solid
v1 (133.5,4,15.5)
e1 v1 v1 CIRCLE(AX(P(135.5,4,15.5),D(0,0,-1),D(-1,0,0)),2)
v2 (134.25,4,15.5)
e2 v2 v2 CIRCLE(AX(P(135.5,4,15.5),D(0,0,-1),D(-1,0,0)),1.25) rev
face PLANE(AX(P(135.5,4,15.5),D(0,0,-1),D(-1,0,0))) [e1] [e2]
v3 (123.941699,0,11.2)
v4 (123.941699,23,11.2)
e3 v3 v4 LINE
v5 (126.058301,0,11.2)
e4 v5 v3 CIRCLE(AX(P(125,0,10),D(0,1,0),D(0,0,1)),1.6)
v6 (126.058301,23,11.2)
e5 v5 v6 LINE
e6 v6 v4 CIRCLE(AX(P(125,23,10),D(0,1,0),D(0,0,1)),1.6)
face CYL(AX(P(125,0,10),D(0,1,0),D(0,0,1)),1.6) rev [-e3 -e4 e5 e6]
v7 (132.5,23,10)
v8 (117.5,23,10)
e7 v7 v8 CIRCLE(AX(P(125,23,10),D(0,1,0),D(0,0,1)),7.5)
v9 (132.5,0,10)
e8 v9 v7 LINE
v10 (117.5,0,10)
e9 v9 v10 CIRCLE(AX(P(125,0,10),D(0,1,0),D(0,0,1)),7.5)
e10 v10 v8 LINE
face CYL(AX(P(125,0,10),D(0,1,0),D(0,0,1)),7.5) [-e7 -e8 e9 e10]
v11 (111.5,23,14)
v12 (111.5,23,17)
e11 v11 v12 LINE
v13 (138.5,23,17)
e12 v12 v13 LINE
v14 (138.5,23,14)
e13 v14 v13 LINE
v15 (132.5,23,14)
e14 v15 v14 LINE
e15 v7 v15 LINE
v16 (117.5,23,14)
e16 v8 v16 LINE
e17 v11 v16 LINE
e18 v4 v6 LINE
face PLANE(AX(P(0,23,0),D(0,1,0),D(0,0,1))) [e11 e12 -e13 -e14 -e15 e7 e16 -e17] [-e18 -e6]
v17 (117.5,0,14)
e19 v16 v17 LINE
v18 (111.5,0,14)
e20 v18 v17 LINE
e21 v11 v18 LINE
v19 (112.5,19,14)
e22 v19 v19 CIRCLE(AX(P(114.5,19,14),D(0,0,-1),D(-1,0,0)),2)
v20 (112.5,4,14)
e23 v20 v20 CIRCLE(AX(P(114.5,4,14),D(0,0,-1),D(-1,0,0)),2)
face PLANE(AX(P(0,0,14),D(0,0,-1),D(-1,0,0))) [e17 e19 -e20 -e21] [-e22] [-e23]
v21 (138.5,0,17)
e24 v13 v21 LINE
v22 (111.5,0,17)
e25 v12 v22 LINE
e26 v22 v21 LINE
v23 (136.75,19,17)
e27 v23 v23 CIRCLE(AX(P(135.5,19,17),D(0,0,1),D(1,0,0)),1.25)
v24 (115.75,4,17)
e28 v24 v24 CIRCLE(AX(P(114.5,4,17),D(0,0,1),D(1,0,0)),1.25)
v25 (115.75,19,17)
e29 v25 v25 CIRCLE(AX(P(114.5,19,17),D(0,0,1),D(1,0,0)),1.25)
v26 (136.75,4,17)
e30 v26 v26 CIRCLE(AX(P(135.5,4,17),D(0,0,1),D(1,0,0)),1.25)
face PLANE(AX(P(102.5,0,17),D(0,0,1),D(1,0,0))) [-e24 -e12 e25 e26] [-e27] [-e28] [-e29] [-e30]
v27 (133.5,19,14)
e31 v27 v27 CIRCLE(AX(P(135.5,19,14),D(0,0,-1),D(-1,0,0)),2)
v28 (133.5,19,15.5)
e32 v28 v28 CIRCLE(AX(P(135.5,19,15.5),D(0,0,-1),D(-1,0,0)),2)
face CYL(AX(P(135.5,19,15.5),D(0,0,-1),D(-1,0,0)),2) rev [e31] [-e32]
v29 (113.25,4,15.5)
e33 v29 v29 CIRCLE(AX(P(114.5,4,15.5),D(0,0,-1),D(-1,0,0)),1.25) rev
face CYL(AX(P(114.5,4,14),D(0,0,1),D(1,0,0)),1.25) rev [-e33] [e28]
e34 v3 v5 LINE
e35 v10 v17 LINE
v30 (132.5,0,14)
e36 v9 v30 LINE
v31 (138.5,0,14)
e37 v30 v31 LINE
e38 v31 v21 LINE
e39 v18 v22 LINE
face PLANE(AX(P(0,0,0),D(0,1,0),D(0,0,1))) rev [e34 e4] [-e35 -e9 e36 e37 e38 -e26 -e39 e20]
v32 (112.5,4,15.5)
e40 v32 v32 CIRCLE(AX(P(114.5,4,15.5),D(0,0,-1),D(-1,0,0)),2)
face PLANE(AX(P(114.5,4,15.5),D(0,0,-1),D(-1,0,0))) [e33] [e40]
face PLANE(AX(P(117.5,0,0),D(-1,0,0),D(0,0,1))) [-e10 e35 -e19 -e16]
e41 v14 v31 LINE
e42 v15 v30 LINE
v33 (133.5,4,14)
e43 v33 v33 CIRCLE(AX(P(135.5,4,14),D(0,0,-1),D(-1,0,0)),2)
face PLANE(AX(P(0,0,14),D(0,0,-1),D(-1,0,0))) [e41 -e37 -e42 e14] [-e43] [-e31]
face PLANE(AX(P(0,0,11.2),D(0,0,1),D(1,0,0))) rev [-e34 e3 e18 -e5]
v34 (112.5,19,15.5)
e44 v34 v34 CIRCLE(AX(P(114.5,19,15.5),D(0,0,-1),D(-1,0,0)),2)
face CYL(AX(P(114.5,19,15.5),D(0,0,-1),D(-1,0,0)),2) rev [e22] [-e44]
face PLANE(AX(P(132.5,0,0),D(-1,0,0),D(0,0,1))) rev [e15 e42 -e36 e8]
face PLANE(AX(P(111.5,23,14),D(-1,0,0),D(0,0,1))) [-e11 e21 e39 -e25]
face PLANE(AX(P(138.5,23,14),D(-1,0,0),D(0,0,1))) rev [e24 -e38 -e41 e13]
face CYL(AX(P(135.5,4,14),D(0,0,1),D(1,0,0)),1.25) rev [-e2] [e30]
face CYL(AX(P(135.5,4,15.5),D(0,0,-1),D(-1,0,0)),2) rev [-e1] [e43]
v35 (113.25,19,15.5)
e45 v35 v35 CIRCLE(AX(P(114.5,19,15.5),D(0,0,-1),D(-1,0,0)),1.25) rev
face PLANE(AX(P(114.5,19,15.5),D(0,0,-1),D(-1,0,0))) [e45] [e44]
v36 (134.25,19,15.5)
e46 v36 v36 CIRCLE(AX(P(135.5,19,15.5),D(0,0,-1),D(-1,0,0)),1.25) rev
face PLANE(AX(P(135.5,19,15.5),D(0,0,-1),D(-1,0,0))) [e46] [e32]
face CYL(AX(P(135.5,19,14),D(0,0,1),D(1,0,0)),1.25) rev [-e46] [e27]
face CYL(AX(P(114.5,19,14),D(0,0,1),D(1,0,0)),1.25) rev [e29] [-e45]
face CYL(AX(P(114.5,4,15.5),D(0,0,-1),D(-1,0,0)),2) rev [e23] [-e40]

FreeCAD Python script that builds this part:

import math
import FreeCAD as App
import Part
import Sketcher
from FreeCAD import Vector
Q = App.Units.Quantity

doc = App.newDocument("Part")
params = doc.addObject("Spreadsheet::Sheet", "Params")
for row, (alias, value) in enumerate([
    ("sketch1_width", "170 mm"),
    ("sketch1_height", "20 mm"),
    ("pad1_length", "23 mm"),
    ("sketch2_radius", "1.6 mm"),
    ("sketch3_width", "13 mm"),
    ("sketch3_height", "17 mm"),
    ("pocket2_length", "30 mm"),
    ("sketch4_radius", "7.5 mm"),
    ("sketch4_width", "20 mm"),
    ("sketch4_width2", "170 mm"),
    ("sketch4_width3", "15 mm"),
    ("sketch4_height", "7 mm"),
    ("sketch5_width", "50 mm"),
    ("sketch5_height", "3 mm"),
    ("sketch5_width2", "67.5 mm"),
    ("sketch6_diameter", "2.5 mm"),
    ("sketch6_width", "27 mm"),
    ("sketch6_height", "23 mm"),
    ("pad2_length", "3 mm"),
    ("sketch7_diameter", "4 mm"),
    ("pocket5_length", "1.5 mm"),
], start=1):
    params.set(f"A{row}", alias)
    params.set(f"B{row}", "=" + value)
    params.setAlias(f"B{row}", alias)

body = doc.addObject("PartDesign::Body", "Body")

# Sketch on XZ plane
sketch1 = body.newObject("Sketcher::SketchObject", "Sketch")
sketch1.AttachmentSupport = (doc.getObject("XZ_Plane"), [""])
sketch1.MapMode = "FlatFace"
sketch1.addGeometry(Part.LineSegment(Vector(0, 0, 0), Vector(0, 20, 0)), False)
sketch1.addGeometry(Part.LineSegment(Vector(0, 20, 0), Vector(170, 20, 0)), False)
sketch1.addGeometry(Part.LineSegment(Vector(170, 20, 0), Vector(170, 0, 0)), False)
sketch1.addGeometry(Part.LineSegment(Vector(170, 0, 0), Vector(0, 0, 0)), False)
sketch1.addConstraint(Sketcher.Constraint("Coincident", 0, 2, 1, 1))
sketch1.addConstraint(Sketcher.Constraint("Coincident", 1, 2, 2, 1))
sketch1.addConstraint(Sketcher.Constraint("Coincident", 2, 2, 3, 1))
sketch1.addConstraint(Sketcher.Constraint("Coincident", 3, 2, 0, 1))
sketch1.addConstraint(Sketcher.Constraint("Vertical", 0))
sketch1.addConstraint(Sketcher.Constraint("Horizontal", 1))
sketch1.addConstraint(Sketcher.Constraint("Vertical", 2))
sketch1.addConstraint(Sketcher.Constraint("Horizontal", 3))
sketch1.addConstraint(Sketcher.Constraint("Coincident", 3, 2, -1, 1))
sketch1.addConstraint(Sketcher.Constraint("DistanceX", 1, 1, 1, 2, Q("170 mm")))
sketch1.addConstraint(Sketcher.Constraint("DistanceY", 0, 1, 0, 2, Q("20 mm")))
sketch1.setExpression("Constraints[9]", "Params.sketch1_width")
sketch1.setExpression("Constraints[10]", "Params.sketch1_height")
pad1 = body.newObject("PartDesign::Pad", "Pad")
pad1.Profile = sketch1
pad1.setExpression("Length", "Params.pad1_length")
pad1.Reversed = True

# Sketch on XZ plane
sketch2 = body.newObject("Sketcher::SketchObject", "Sketch001")
sketch2.AttachmentSupport = (doc.getObject("XZ_Plane"), [""])
sketch2.MapMode = "FlatFace"
sketch2.AttachmentOffset = App.Placement(Vector(0, 0, -23), App.Rotation())
sketch2.addGeometry(Part.ArcOfCircle(Part.Circle(Vector(160, 10, 0), Vector(0, 0, 1), 1.6), math.radians(131), math.radians(360)), False)
sketch2.addGeometry(Part.LineSegment(Vector(158.9, 11.2, 0), Vector(161.1, 11.2, 0)), False)
sketch2.addGeometry(Part.ArcOfCircle(Part.Circle(Vector(160, 10, 0), Vector(0, 0, 1), 1.6), math.radians(0), math.radians(49)), False)
sketch2.addGeometry(Part.ArcOfCircle(Part.Circle(Vector(125, 10, 0), Vector(0, 0, 1), 1.6), math.radians(131), math.radians(360)), False)
sketch2.addGeometry(Part.LineSegment(Vector(123.9, 11.2, 0), Vector(126.1, 11.2, 0)), False)
sketch2.addGeometry(Part.ArcOfCircle(Part.Circle(Vector(125, 10, 0), Vector(0, 0, 1), 1.6), math.radians(0), math.radians(49)), False)
sketch2.addConstraint(Sketcher.Constraint("Coincident", 0, 1, 1, 1))
sketch2.addConstraint(Sketcher.Constraint("Coincident", 1, 2, 2, 2))
sketch2.addConstraint(Sketcher.Constraint("Tangent", 2, 1, 0, 2))
sketch2.addConstraint(Sketcher.Constraint("Coincident", 3, 1, 4, 1))
sketch2.addConstraint(Sketcher.Constraint("Coincident", 4, 2, 5, 2))
sketch2.addConstraint(Sketcher.Constraint("Tangent", 5, 1, 3, 2))
sketch2.addConstraint(Sketcher.Constraint("Horizontal", 1))
sketch2.addConstraint(Sketcher.Constraint("Horizontal", 4))
sketch2.addConstraint(Sketcher.Constraint("Equal", 0, 2))
sketch2.addConstraint(Sketcher.Constraint("Equal", 2, 3))
sketch2.addConstraint(Sketcher.Constraint("Equal", 3, 5))
sketch2.addConstraint(Sketcher.Constraint("Horizontal", 2, 3, 3, 3))
sketch2.addConstraint(Sketcher.Constraint("Horizontal", 5, 3, 2, 1))
sketch2.addConstraint(Sketcher.Constraint("Horizontal", 1, 2, 3, 1))
sketch2.addConstraint(Sketcher.Constraint("Horizontal", 2, 1, 5, 1))
sketch2.addConstraint(Sketcher.Constraint("Radius", 0, Q("1.6 mm")))
sketch2.addConstraint(Sketcher.Constraint("DistanceX", -1, 1, 0, 3, Q("160 mm")))
sketch2.addConstraint(Sketcher.Constraint("DistanceY", -1, 1, 0, 3, Q("10 mm")))
sketch2.addConstraint(Sketcher.Constraint("DistanceX", -1, 1, 3, 3, Q("125 mm")))
sketch2.addConstraint(Sketcher.Constraint("DistanceY", -1, 1, 0, 1, Q("11.2 mm")))
sketch2.setExpression("Constraints[15]", "Params.sketch2_radius")
pocket1 = body.newObject("PartDesign::Pocket", "Pocket")
pocket1.Profile = sketch2
pocket1.Type = "ThroughAll"
pocket1.Reversed = True

# Sketch on YZ plane
sketch3 = body.newObject("Sketcher::SketchObject", "Sketch002")
sketch3.AttachmentSupport = (doc.getObject("YZ_Plane"), [""])
sketch3.MapMode = "FlatFace"
sketch3.AttachmentOffset = App.Placement(Vector(0, 0, 170), App.Rotation())
sketch3.addGeometry(Part.LineSegment(Vector(18, 17, 0), Vector(5, 17, 0)), False)
sketch3.addGeometry(Part.LineSegment(Vector(5, 17, 0), Vector(5, 0, 0)), False)
sketch3.addGeometry(Part.LineSegment(Vector(5, 0, 0), Vector(18, 0, 0)), False)
sketch3.addGeometry(Part.LineSegment(Vector(18, 0, 0), Vector(18, 17, 0)), False)
sketch3.addConstraint(Sketcher.Constraint("Coincident", 0, 2, 1, 1))
sketch3.addConstraint(Sketcher.Constraint("Coincident", 1, 2, 2, 1))
sketch3.addConstraint(Sketcher.Constraint("Coincident", 2, 2, 3, 1))
sketch3.addConstraint(Sketcher.Constraint("Coincident", 3, 2, 0, 1))
sketch3.addConstraint(Sketcher.Constraint("Horizontal", 0))
sketch3.addConstraint(Sketcher.Constraint("Vertical", 1))
sketch3.addConstraint(Sketcher.Constraint("Horizontal", 2))
sketch3.addConstraint(Sketcher.Constraint("Vertical", 3))
sketch3.addConstraint(Sketcher.Constraint("PointOnObject", 1, 2, -1))
sketch3.addConstraint(Sketcher.Constraint("DistanceX", 0, 2, 0, 1, Q("13 mm")))
sketch3.addConstraint(Sketcher.Constraint("DistanceY", 1, 2, 1, 1, Q("17 mm")))
sketch3.addConstraint(Sketcher.Constraint("DistanceX", -1, 1, 0, 2, Q("5 mm")))
sketch3.setExpression("Constraints[9]", "Params.sketch3_width")
sketch3.setExpression("Constraints[10]", "Params.sketch3_height")
pocket2 = body.newObject("PartDesign::Pocket", "Pocket001")
pocket2.Profile = sketch3
pocket2.setExpression("Length", "Params.pocket2_length")

# Sketch on XZ plane
sketch4 = body.newObject("Sketcher::SketchObject", "Sketch003")
sketch4.AttachmentSupport = (doc.getObject("XZ_Plane"), [""])
sketch4.MapMode = "FlatFace"
sketch4.AttachmentOffset = App.Placement(Vector(0, 0, -23), App.Rotation())
sketch4.addGeometry(Part.LineSegment(Vector(117.5, 17, 0), Vector(117.5, 10, 0)), False)
sketch4.addGeometry(Part.ArcOfCircle(Part.Circle(Vector(125, 10, 0), Vector(0, 0, 1), 7.5), math.radians(180), math.radians(360)), False)
sketch4.addGeometry(Part.LineSegment(Vector(132.5, 10, 0), Vector(132.5, 17, 0)), False)
sketch4.addGeometry(Part.LineSegment(Vector(132.5, 17, 0), Vector(152.5, 17, 0)), False)
sketch4.addGeometry(Part.LineSegment(Vector(152.5, 17, 0), Vector(152.5, 10, 0)), False)
sketch4.addGeometry(Part.ArcOfCircle(Part.Circle(Vector(160, 10, 0), Vector(0, 0, 1), 7.5), math.radians(180), math.radians(360)), False)
sketch4.addGeometry(Part.LineSegment(Vector(167.5, 10, 0), Vector(167.5, 17, 0)), False)
sketch4.addGeometry(Part.LineSegment(Vector(167.5, 17, 0), Vector(170, 17, 0)), False)
sketch4.addGeometry(Part.LineSegment(Vector(170, 17, 0), Vector(170, 0, 0)), False)
sketch4.addGeometry(Part.LineSegment(Vector(170, 0, 0), Vector(0, 0, 0)), False)
sketch4.addGeometry(Part.LineSegment(Vector(0, 0, 0), Vector(0, 20, 0)), False)
sketch4.addGeometry(Part.LineSegment(Vector(0, 20, 0), Vector(102.5, 20, 0)), False)
sketch4.addGeometry(Part.LineSegment(Vector(102.5, 20, 0), Vector(102.5, 17, 0)), False)
sketch4.addGeometry(Part.LineSegment(Vector(102.5, 17, 0), Vector(117.5, 17, 0)), False)
sketch4.addConstraint(Sketcher.Constraint("Tangent", 0, 2, 1, 1))
sketch4.addConstraint(Sketcher.Constraint("Tangent", 1, 2, 2, 1))
sketch4.addConstraint(Sketcher.Constraint("Coincident", 2, 2, 3, 1))
sketch4.addConstraint(Sketcher.Constraint("Coincident", 3, 2, 4, 1))
sketch4.addConstraint(Sketcher.Constraint("Tangent", 4, 2, 5, 1))
sketch4.addConstraint(Sketcher.Constraint("Tangent", 5, 2, 6, 1))
sketch4.addConstraint(Sketcher.Constraint("Coincident", 6, 2, 7, 1))
sketch4.addConstraint(Sketcher.Constraint("Coincident", 7, 2, 8, 1))
sketch4.addConstraint(Sketcher.Constraint("Coincident", 8, 2, 9, 1))
sketch4.addConstraint(Sketcher.Constraint("Coincident", 9, 2, 10, 1))
sketch4.addConstraint(Sketcher.Constraint("Coincident", 10, 2, 11, 1))
sketch4.addConstraint(Sketcher.Constraint("Coincident", 11, 2, 12, 1))
sketch4.addConstraint(Sketcher.Constraint("Coincident", 12, 2, 13, 1))
sketch4.addConstraint(Sketcher.Constraint("Coincident", 13, 2, 0, 1))
sketch4.addConstraint(Sketcher.Constraint("Vertical", 0))
sketch4.addConstraint(Sketcher.Constraint("Vertical", 2))
sketch4.addConstraint(Sketcher.Constraint("Horizontal", 3))
sketch4.addConstraint(Sketcher.Constraint("Vertical", 4))
sketch4.addConstraint(Sketcher.Constraint("Vertical", 6))
sketch4.addConstraint(Sketcher.Constraint("Horizontal", 7))
sketch4.addConstraint(Sketcher.Constraint("Vertical", 8))
sketch4.addConstraint(Sketcher.Constraint("Horizontal", 9))
sketch4.addConstraint(Sketcher.Constraint("Vertical", 10))
sketch4.addConstraint(Sketcher.Constraint("Horizontal", 11))
sketch4.addConstraint(Sketcher.Constraint("Vertical", 12))
sketch4.addConstraint(Sketcher.Constraint("Horizontal", 13))
sketch4.addConstraint(Sketcher.Constraint("Coincident", 9, 2, -1, 1))
sketch4.addConstraint(Sketcher.Constraint("Equal", 1, 5))
sketch4.addConstraint(Sketcher.Constraint("Horizontal", 1, 3, 5, 3))
sketch4.addConstraint(Sketcher.Constraint("Horizontal", 3, 2, 6, 2))
sketch4.addConstraint(Sketcher.Constraint("Horizontal", 7, 2, 12, 2))
sketch4.addConstraint(Sketcher.Constraint("Equal", 3, 10))
sketch4.addConstraint(Sketcher.Constraint("Radius", 1, Q("7.5 mm")))
sketch4.addConstraint(Sketcher.Constraint("DistanceX", 3, 1, 3, 2, Q("20 mm")))
sketch4.addConstraint(Sketcher.Constraint("DistanceX", 9, 2, 9, 1, Q("170 mm")))
sketch4.addConstraint(Sketcher.Constraint("DistanceX", 13, 1, 13, 2, Q("15 mm")))
sketch4.addConstraint(Sketcher.Constraint("DistanceY", 0, 2, 0, 1, Q("7 mm")))
sketch4.addConstraint(Sketcher.Constraint("DistanceY", 8, 2, 8, 1, Q("17 mm")))
sketch4.addConstraint(Sketcher.Constraint("DistanceX", 7, 1, 7, 2, Q("2.5 mm")))
sketch4.setExpression("Constraints[32]", "Params.sketch4_radius")
sketch4.setExpression("Constraints[33]", "Params.sketch4_width")
sketch4.setExpression("Constraints[34]", "Params.sketch4_width2")
sketch4.setExpression("Constraints[35]", "Params.sketch4_width3")
sketch4.setExpression("Constraints[36]", "Params.sketch4_height")
pocket3 = body.newObject("PartDesign::Pocket", "Pocket002")
pocket3.Profile = sketch4
pocket3.Type = "ThroughAll"
pocket3.Reversed = True

# Sketch on XZ plane
sketch5 = body.newObject("Sketcher::SketchObject", "Sketch004")
sketch5.AttachmentSupport = (doc.getObject("XZ_Plane"), [""])
sketch5.MapMode = "FlatFace"
sketch5.AttachmentOffset = App.Placement(Vector(0, 0, -23), App.Rotation())
sketch5.addGeometry(Part.LineSegment(Vector(102.5, 17, 0), Vector(102.5, 20, 0)), False)
sketch5.addGeometry(Part.LineSegment(Vector(102.5, 20, 0), Vector(170, 20, 0)), False)
sketch5.addGeometry(Part.LineSegment(Vector(170, 20, 0), Vector(170, 2.5, 0)), False)
sketch5.addGeometry(Part.LineSegment(Vector(170, 2.5, 0), Vector(152.5, 2.5, 0)), False)
sketch5.addGeometry(Part.LineSegment(Vector(152.5, 2.5, 0), Vector(152.5, 17, 0)), False)
sketch5.addGeometry(Part.LineSegment(Vector(152.5, 17, 0), Vector(102.5, 17, 0)), False)
sketch5.addConstraint(Sketcher.Constraint("Coincident", 0, 2, 1, 1))
sketch5.addConstraint(Sketcher.Constraint("Coincident", 1, 2, 2, 1))
sketch5.addConstraint(Sketcher.Constraint("Coincident", 2, 2, 3, 1))
sketch5.addConstraint(Sketcher.Constraint("Coincident", 3, 2, 4, 1))
sketch5.addConstraint(Sketcher.Constraint("Coincident", 4, 2, 5, 1))
sketch5.addConstraint(Sketcher.Constraint("Coincident", 5, 2, 0, 1))
sketch5.addConstraint(Sketcher.Constraint("Vertical", 0))
sketch5.addConstraint(Sketcher.Constraint("Horizontal", 1))
sketch5.addConstraint(Sketcher.Constraint("Vertical", 2))
sketch5.addConstraint(Sketcher.Constraint("Horizontal", 3))
sketch5.addConstraint(Sketcher.Constraint("Vertical", 4))
sketch5.addConstraint(Sketcher.Constraint("Horizontal", 5))
sketch5.addConstraint(Sketcher.Constraint("Equal", 3, 2))
sketch5.addConstraint(Sketcher.Constraint("DistanceX", 5, 2, 5, 1, Q("50 mm")))
sketch5.addConstraint(Sketcher.Constraint("DistanceY", 0, 1, 0, 2, Q("3 mm")))
sketch5.addConstraint(Sketcher.Constraint("DistanceX", 1, 1, 1, 2, Q("67.5 mm")))
sketch5.addConstraint(Sketcher.Constraint("DistanceY", -1, 1, 0, 2, Q("20 mm")))
sketch5.addConstraint(Sketcher.Constraint("DistanceX", -1, 1, 1, 2, Q("170 mm")))
sketch5.setExpression("Constraints[13]", "Params.sketch5_width")
sketch5.setExpression("Constraints[14]", "Params.sketch5_height")
sketch5.setExpression("Constraints[15]", "Params.sketch5_width2")
pocket4 = body.newObject("PartDesign::Pocket", "Pocket003")
pocket4.Profile = sketch5
pocket4.Type = "ThroughAll"
pocket4.Reversed = True

# Sketch on XY plane
sketch6 = body.newObject("Sketcher::SketchObject", "Sketch005")
sketch6.AttachmentSupport = (doc.getObject("XY_Plane"), [""])
sketch6.MapMode = "FlatFace"
sketch6.AttachmentOffset = App.Placement(Vector(0, 0, 17), App.Rotation())
sketch6.addGeometry(Part.LineSegment(Vector(111.5, 23, 0), Vector(111.5, 0, 0)), False)
sketch6.addGeometry(Part.LineSegment(Vector(111.5, 0, 0), Vector(138.5, 0, 0)), False)
sketch6.addGeometry(Part.LineSegment(Vector(138.5, 0, 0), Vector(138.5, 23, 0)), False)
sketch6.addGeometry(Part.LineSegment(Vector(138.5, 23, 0), Vector(111.5, 23, 0)), False)
sketch6.addGeometry(Part.Circle(Vector(114.5, 4, 0), Vector(0, 0, 1), 1.2), False)
sketch6.addGeometry(Part.Circle(Vector(135.5, 4, 0), Vector(0, 0, 1), 1.2), False)
sketch6.addGeometry(Part.Circle(Vector(114.5, 19, 0), Vector(0, 0, 1), 1.2), False)
sketch6.addGeometry(Part.Circle(Vector(135.5, 19, 0), Vector(0, 0, 1), 1.2), False)
sketch6.addConstraint(Sketcher.Constraint("Coincident", 0, 2, 1, 1))
sketch6.addConstraint(Sketcher.Constraint("Coincident", 1, 2, 2, 1))
sketch6.addConstraint(Sketcher.Constraint("Coincident", 2, 2, 3, 1))
sketch6.addConstraint(Sketcher.Constraint("Coincident", 3, 2, 0, 1))
sketch6.addConstraint(Sketcher.Constraint("Vertical", 0))
sketch6.addConstraint(Sketcher.Constraint("Horizontal", 1))
sketch6.addConstraint(Sketcher.Constraint("Vertical", 2))
sketch6.addConstraint(Sketcher.Constraint("Horizontal", 3))
sketch6.addConstraint(Sketcher.Constraint("Equal", 4, 5))
sketch6.addConstraint(Sketcher.Constraint("Equal", 5, 6))
sketch6.addConstraint(Sketcher.Constraint("Equal", 6, 7))
sketch6.addConstraint(Sketcher.Constraint("PointOnObject", 0, 2, -1))
sketch6.addConstraint(Sketcher.Constraint("Horizontal", 4, 3, 5, 3))
sketch6.addConstraint(Sketcher.Constraint("Horizontal", 6, 3, 7, 3))
sketch6.addConstraint(Sketcher.Constraint("Vertical", 4, 3, 6, 3))
sketch6.addConstraint(Sketcher.Constraint("Vertical", 5, 3, 7, 3))
sketch6.addConstraint(Sketcher.Constraint("Diameter", 4, Q("2.5 mm")))
sketch6.addConstraint(Sketcher.Constraint("DistanceX", 1, 1, 1, 2, Q("27 mm")))
sketch6.addConstraint(Sketcher.Constraint("DistanceY", 0, 2, 0, 1, Q("23 mm")))
sketch6.addConstraint(Sketcher.Constraint("DistanceY", -1, 1, 4, 3, Q("4 mm")))
sketch6.addConstraint(Sketcher.Constraint("DistanceY", -1, 1, 6, 3, Q("19 mm")))
sketch6.addConstraint(Sketcher.Constraint("DistanceX", 4, 3, 5, 3, Q("21 mm")))
sketch6.addConstraint(Sketcher.Constraint("DistanceX", 0, 2, 4, 3, Q("3 mm")))
sketch6.addConstraint(Sketcher.Constraint("DistanceX", -1, 1, 4, 3, Q("114.5 mm")))
sketch6.setExpression("Constraints[16]", "Params.sketch6_diameter")
sketch6.setExpression("Constraints[17]", "Params.sketch6_width")
sketch6.setExpression("Constraints[18]", "Params.sketch6_height")
pad2 = body.newObject("PartDesign::Pad", "Pad001")
pad2.Profile = sketch6
pad2.setExpression("Length", "Params.pad2_length")
pad2.Reversed = True

# Sketch on XY plane
sketch7 = body.newObject("Sketcher::SketchObject", "Sketch006")
sketch7.AttachmentSupport = (doc.getObject("XY_Plane"), [""])
sketch7.MapMode = "FlatFace"
sketch7.AttachmentOffset = App.Placement(Vector(0, 0, 14), App.Rotation())
sketch7.addGeometry(Part.Circle(Vector(114.5, 19, 0), Vector(0, 0, 1), 2), False)
sketch7.addGeometry(Part.Circle(Vector(114.5, 4, 0), Vector(0, 0, 1), 2), False)
sketch7.addGeometry(Part.Circle(Vector(135.5, 4, 0), Vector(0, 0, 1), 2), False)
sketch7.addGeometry(Part.Circle(Vector(135.5, 19, 0), Vector(0, 0, 1), 2), False)
sketch7.addConstraint(Sketcher.Constraint("Equal", 0, 1))
sketch7.addConstraint(Sketcher.Constraint("Equal", 1, 2))
sketch7.addConstraint(Sketcher.Constraint("Equal", 2, 3))
sketch7.addConstraint(Sketcher.Constraint("Horizontal", 1, 3, 2, 3))
sketch7.addConstraint(Sketcher.Constraint("Horizontal", 0, 3, 3, 3))
sketch7.addConstraint(Sketcher.Constraint("Vertical", 0, 3, 1, 3))
sketch7.addConstraint(Sketcher.Constraint("Vertical", 2, 3, 3, 3))
sketch7.addConstraint(Sketcher.Constraint("Diameter", 0, Q("4 mm")))
sketch7.addConstraint(Sketcher.Constraint("DistanceY", -1, 1, 0, 3, Q("19 mm")))
sketch7.addConstraint(Sketcher.Constraint("DistanceY", -1, 1, 1, 3, Q("4 mm")))
sketch7.addConstraint(Sketcher.Constraint("DistanceX", 1, 3, 2, 3, Q("21 mm")))
sketch7.addConstraint(Sketcher.Constraint("DistanceX", -1, 1, 0, 3, Q("114.5 mm")))
sketch7.setExpression("Constraints[7]", "Params.sketch7_diameter")
pocket5 = body.newObject("PartDesign::Pocket", "Pocket004")
pocket5.Profile = sketch7
pocket5.setExpression("Length", "Params.pocket5_length")
pocket5.Reversed = True

doc.recompute()
